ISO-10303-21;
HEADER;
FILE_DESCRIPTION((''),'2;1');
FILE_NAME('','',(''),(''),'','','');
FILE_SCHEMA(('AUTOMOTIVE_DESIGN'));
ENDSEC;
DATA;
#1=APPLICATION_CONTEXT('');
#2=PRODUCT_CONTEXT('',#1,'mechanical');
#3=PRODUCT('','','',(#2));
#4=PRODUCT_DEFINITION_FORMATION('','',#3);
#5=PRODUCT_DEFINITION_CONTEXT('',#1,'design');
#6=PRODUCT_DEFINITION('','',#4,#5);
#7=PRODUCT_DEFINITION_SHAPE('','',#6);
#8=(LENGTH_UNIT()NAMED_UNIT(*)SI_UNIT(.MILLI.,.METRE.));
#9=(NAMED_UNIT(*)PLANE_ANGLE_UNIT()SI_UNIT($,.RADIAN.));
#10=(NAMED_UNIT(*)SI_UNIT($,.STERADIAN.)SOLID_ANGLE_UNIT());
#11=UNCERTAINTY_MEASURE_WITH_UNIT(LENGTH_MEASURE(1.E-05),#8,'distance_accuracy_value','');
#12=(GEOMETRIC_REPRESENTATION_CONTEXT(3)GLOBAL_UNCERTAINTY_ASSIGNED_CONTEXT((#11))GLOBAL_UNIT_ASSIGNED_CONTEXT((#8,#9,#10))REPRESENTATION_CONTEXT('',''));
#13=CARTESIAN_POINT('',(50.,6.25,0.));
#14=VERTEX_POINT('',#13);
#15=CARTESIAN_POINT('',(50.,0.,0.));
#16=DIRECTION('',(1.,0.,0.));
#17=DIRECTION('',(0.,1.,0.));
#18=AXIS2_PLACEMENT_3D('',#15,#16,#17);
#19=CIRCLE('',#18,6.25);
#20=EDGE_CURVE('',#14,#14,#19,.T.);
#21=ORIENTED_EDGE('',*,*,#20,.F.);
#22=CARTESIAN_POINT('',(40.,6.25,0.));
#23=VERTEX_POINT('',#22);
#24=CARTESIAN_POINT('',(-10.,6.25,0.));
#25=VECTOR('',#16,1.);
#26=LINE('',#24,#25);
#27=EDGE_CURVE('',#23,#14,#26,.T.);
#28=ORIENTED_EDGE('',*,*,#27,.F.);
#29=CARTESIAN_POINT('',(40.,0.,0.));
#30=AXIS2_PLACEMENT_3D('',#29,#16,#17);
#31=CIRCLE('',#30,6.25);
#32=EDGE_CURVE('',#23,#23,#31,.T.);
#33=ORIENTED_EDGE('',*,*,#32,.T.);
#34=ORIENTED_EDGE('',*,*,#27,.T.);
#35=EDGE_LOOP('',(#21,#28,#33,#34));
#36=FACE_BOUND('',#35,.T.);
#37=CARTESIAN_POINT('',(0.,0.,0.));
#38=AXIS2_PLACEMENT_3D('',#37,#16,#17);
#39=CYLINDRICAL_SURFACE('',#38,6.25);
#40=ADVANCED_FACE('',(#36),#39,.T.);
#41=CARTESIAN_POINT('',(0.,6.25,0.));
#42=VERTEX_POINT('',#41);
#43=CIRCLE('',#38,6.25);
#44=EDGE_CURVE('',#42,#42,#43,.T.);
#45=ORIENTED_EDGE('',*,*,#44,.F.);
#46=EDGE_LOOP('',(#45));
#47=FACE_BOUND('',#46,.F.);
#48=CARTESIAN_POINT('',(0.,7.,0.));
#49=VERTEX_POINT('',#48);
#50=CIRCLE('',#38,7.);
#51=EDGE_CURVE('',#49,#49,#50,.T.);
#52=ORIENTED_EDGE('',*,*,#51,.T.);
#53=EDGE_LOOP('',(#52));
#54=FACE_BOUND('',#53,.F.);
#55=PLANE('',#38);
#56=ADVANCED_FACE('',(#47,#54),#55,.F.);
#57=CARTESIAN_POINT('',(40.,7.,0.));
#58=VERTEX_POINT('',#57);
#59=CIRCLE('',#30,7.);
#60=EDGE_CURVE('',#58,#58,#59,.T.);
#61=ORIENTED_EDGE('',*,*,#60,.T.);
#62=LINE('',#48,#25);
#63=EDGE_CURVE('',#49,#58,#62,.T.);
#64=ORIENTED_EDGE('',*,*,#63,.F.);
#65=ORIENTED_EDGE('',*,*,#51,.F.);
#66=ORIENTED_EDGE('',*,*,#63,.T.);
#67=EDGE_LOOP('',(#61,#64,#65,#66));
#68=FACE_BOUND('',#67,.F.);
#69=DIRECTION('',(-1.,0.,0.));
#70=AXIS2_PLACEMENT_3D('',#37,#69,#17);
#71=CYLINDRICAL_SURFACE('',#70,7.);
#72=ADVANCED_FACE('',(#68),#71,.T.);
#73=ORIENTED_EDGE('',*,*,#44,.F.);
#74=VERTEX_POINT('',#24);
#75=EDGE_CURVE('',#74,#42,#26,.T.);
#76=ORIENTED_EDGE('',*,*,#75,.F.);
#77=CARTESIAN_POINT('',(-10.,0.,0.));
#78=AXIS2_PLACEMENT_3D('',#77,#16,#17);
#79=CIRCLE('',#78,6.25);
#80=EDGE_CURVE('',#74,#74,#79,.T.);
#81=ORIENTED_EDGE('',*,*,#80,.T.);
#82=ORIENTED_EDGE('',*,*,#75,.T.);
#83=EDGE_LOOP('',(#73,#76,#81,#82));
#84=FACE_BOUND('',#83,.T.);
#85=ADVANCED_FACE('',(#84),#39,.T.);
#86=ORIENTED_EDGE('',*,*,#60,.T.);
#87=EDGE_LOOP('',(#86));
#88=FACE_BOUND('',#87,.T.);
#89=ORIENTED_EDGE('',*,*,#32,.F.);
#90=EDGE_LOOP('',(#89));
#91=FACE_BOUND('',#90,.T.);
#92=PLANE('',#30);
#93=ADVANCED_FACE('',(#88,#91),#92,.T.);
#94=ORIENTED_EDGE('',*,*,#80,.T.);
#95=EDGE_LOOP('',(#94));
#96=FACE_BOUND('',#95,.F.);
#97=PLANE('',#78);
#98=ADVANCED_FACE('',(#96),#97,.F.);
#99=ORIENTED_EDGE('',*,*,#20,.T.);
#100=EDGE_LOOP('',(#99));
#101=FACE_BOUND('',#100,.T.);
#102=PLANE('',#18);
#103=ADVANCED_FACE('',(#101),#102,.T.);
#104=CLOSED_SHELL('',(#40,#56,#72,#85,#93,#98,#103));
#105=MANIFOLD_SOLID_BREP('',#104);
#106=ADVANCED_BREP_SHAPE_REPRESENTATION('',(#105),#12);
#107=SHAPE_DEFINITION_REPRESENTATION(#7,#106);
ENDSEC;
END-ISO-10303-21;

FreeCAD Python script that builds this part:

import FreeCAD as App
import Part
import Sketcher
from FreeCAD import Vector

doc = App.newDocument("Part")
body = doc.addObject("PartDesign::Body", "Body")

# Sketch on YZ plane
sketch1 = doc.addObject("Sketcher::SketchObject", "Sketch")
body.addObject(sketch1)
sketch1.AttachmentSupport = (doc.YZ_Plane, [""])
sketch1.MapMode = "FlatFace"
sketch1.addGeometry(Part.Circle(Vector(0, 0, 0), Vector(0, 0, 1), 6.25), False)
sketch1.addConstraint([
    Sketcher.Constraint("Coincident", 0, 3, -1, 1),
    Sketcher.Constraint("Diameter", 0, 12.5),
])
pad1 = doc.addObject("PartDesign::Pad", "Pad")
body.addObject(pad1)
pad1.Profile = sketch1
pad1.Type = "TwoLengths"
pad1.Length = 50
pad1.Length2 = 10

# Sketch on YZ plane
sketch2 = doc.addObject("Sketcher::SketchObject", "Sketch001")
body.addObject(sketch2)
sketch2.AttachmentSupport = (doc.YZ_Plane, [""])
sketch2.MapMode = "FlatFace"
sketch2.addGeometry([
    Part.Circle(Vector(0, 0, 0), Vector(0, 0, 1), 7),
    Part.Circle(Vector(0, 0, 0), Vector(0, 0, 1), 6.25),
], False)
sketch2.addConstraint([
    Sketcher.Constraint("Coincident", 0, 3, -1, 1),
    Sketcher.Constraint("Coincident", 1, 3, -1, 1),
    Sketcher.Constraint("Diameter", 0, 14.0),
    Sketcher.Constraint("Diameter", 1, 12.5),
])
pad2 = doc.addObject("PartDesign::Pad", "Pad001")
body.addObject(pad2)
pad2.Profile = sketch2
pad2.Length = 40

doc.recompute()
